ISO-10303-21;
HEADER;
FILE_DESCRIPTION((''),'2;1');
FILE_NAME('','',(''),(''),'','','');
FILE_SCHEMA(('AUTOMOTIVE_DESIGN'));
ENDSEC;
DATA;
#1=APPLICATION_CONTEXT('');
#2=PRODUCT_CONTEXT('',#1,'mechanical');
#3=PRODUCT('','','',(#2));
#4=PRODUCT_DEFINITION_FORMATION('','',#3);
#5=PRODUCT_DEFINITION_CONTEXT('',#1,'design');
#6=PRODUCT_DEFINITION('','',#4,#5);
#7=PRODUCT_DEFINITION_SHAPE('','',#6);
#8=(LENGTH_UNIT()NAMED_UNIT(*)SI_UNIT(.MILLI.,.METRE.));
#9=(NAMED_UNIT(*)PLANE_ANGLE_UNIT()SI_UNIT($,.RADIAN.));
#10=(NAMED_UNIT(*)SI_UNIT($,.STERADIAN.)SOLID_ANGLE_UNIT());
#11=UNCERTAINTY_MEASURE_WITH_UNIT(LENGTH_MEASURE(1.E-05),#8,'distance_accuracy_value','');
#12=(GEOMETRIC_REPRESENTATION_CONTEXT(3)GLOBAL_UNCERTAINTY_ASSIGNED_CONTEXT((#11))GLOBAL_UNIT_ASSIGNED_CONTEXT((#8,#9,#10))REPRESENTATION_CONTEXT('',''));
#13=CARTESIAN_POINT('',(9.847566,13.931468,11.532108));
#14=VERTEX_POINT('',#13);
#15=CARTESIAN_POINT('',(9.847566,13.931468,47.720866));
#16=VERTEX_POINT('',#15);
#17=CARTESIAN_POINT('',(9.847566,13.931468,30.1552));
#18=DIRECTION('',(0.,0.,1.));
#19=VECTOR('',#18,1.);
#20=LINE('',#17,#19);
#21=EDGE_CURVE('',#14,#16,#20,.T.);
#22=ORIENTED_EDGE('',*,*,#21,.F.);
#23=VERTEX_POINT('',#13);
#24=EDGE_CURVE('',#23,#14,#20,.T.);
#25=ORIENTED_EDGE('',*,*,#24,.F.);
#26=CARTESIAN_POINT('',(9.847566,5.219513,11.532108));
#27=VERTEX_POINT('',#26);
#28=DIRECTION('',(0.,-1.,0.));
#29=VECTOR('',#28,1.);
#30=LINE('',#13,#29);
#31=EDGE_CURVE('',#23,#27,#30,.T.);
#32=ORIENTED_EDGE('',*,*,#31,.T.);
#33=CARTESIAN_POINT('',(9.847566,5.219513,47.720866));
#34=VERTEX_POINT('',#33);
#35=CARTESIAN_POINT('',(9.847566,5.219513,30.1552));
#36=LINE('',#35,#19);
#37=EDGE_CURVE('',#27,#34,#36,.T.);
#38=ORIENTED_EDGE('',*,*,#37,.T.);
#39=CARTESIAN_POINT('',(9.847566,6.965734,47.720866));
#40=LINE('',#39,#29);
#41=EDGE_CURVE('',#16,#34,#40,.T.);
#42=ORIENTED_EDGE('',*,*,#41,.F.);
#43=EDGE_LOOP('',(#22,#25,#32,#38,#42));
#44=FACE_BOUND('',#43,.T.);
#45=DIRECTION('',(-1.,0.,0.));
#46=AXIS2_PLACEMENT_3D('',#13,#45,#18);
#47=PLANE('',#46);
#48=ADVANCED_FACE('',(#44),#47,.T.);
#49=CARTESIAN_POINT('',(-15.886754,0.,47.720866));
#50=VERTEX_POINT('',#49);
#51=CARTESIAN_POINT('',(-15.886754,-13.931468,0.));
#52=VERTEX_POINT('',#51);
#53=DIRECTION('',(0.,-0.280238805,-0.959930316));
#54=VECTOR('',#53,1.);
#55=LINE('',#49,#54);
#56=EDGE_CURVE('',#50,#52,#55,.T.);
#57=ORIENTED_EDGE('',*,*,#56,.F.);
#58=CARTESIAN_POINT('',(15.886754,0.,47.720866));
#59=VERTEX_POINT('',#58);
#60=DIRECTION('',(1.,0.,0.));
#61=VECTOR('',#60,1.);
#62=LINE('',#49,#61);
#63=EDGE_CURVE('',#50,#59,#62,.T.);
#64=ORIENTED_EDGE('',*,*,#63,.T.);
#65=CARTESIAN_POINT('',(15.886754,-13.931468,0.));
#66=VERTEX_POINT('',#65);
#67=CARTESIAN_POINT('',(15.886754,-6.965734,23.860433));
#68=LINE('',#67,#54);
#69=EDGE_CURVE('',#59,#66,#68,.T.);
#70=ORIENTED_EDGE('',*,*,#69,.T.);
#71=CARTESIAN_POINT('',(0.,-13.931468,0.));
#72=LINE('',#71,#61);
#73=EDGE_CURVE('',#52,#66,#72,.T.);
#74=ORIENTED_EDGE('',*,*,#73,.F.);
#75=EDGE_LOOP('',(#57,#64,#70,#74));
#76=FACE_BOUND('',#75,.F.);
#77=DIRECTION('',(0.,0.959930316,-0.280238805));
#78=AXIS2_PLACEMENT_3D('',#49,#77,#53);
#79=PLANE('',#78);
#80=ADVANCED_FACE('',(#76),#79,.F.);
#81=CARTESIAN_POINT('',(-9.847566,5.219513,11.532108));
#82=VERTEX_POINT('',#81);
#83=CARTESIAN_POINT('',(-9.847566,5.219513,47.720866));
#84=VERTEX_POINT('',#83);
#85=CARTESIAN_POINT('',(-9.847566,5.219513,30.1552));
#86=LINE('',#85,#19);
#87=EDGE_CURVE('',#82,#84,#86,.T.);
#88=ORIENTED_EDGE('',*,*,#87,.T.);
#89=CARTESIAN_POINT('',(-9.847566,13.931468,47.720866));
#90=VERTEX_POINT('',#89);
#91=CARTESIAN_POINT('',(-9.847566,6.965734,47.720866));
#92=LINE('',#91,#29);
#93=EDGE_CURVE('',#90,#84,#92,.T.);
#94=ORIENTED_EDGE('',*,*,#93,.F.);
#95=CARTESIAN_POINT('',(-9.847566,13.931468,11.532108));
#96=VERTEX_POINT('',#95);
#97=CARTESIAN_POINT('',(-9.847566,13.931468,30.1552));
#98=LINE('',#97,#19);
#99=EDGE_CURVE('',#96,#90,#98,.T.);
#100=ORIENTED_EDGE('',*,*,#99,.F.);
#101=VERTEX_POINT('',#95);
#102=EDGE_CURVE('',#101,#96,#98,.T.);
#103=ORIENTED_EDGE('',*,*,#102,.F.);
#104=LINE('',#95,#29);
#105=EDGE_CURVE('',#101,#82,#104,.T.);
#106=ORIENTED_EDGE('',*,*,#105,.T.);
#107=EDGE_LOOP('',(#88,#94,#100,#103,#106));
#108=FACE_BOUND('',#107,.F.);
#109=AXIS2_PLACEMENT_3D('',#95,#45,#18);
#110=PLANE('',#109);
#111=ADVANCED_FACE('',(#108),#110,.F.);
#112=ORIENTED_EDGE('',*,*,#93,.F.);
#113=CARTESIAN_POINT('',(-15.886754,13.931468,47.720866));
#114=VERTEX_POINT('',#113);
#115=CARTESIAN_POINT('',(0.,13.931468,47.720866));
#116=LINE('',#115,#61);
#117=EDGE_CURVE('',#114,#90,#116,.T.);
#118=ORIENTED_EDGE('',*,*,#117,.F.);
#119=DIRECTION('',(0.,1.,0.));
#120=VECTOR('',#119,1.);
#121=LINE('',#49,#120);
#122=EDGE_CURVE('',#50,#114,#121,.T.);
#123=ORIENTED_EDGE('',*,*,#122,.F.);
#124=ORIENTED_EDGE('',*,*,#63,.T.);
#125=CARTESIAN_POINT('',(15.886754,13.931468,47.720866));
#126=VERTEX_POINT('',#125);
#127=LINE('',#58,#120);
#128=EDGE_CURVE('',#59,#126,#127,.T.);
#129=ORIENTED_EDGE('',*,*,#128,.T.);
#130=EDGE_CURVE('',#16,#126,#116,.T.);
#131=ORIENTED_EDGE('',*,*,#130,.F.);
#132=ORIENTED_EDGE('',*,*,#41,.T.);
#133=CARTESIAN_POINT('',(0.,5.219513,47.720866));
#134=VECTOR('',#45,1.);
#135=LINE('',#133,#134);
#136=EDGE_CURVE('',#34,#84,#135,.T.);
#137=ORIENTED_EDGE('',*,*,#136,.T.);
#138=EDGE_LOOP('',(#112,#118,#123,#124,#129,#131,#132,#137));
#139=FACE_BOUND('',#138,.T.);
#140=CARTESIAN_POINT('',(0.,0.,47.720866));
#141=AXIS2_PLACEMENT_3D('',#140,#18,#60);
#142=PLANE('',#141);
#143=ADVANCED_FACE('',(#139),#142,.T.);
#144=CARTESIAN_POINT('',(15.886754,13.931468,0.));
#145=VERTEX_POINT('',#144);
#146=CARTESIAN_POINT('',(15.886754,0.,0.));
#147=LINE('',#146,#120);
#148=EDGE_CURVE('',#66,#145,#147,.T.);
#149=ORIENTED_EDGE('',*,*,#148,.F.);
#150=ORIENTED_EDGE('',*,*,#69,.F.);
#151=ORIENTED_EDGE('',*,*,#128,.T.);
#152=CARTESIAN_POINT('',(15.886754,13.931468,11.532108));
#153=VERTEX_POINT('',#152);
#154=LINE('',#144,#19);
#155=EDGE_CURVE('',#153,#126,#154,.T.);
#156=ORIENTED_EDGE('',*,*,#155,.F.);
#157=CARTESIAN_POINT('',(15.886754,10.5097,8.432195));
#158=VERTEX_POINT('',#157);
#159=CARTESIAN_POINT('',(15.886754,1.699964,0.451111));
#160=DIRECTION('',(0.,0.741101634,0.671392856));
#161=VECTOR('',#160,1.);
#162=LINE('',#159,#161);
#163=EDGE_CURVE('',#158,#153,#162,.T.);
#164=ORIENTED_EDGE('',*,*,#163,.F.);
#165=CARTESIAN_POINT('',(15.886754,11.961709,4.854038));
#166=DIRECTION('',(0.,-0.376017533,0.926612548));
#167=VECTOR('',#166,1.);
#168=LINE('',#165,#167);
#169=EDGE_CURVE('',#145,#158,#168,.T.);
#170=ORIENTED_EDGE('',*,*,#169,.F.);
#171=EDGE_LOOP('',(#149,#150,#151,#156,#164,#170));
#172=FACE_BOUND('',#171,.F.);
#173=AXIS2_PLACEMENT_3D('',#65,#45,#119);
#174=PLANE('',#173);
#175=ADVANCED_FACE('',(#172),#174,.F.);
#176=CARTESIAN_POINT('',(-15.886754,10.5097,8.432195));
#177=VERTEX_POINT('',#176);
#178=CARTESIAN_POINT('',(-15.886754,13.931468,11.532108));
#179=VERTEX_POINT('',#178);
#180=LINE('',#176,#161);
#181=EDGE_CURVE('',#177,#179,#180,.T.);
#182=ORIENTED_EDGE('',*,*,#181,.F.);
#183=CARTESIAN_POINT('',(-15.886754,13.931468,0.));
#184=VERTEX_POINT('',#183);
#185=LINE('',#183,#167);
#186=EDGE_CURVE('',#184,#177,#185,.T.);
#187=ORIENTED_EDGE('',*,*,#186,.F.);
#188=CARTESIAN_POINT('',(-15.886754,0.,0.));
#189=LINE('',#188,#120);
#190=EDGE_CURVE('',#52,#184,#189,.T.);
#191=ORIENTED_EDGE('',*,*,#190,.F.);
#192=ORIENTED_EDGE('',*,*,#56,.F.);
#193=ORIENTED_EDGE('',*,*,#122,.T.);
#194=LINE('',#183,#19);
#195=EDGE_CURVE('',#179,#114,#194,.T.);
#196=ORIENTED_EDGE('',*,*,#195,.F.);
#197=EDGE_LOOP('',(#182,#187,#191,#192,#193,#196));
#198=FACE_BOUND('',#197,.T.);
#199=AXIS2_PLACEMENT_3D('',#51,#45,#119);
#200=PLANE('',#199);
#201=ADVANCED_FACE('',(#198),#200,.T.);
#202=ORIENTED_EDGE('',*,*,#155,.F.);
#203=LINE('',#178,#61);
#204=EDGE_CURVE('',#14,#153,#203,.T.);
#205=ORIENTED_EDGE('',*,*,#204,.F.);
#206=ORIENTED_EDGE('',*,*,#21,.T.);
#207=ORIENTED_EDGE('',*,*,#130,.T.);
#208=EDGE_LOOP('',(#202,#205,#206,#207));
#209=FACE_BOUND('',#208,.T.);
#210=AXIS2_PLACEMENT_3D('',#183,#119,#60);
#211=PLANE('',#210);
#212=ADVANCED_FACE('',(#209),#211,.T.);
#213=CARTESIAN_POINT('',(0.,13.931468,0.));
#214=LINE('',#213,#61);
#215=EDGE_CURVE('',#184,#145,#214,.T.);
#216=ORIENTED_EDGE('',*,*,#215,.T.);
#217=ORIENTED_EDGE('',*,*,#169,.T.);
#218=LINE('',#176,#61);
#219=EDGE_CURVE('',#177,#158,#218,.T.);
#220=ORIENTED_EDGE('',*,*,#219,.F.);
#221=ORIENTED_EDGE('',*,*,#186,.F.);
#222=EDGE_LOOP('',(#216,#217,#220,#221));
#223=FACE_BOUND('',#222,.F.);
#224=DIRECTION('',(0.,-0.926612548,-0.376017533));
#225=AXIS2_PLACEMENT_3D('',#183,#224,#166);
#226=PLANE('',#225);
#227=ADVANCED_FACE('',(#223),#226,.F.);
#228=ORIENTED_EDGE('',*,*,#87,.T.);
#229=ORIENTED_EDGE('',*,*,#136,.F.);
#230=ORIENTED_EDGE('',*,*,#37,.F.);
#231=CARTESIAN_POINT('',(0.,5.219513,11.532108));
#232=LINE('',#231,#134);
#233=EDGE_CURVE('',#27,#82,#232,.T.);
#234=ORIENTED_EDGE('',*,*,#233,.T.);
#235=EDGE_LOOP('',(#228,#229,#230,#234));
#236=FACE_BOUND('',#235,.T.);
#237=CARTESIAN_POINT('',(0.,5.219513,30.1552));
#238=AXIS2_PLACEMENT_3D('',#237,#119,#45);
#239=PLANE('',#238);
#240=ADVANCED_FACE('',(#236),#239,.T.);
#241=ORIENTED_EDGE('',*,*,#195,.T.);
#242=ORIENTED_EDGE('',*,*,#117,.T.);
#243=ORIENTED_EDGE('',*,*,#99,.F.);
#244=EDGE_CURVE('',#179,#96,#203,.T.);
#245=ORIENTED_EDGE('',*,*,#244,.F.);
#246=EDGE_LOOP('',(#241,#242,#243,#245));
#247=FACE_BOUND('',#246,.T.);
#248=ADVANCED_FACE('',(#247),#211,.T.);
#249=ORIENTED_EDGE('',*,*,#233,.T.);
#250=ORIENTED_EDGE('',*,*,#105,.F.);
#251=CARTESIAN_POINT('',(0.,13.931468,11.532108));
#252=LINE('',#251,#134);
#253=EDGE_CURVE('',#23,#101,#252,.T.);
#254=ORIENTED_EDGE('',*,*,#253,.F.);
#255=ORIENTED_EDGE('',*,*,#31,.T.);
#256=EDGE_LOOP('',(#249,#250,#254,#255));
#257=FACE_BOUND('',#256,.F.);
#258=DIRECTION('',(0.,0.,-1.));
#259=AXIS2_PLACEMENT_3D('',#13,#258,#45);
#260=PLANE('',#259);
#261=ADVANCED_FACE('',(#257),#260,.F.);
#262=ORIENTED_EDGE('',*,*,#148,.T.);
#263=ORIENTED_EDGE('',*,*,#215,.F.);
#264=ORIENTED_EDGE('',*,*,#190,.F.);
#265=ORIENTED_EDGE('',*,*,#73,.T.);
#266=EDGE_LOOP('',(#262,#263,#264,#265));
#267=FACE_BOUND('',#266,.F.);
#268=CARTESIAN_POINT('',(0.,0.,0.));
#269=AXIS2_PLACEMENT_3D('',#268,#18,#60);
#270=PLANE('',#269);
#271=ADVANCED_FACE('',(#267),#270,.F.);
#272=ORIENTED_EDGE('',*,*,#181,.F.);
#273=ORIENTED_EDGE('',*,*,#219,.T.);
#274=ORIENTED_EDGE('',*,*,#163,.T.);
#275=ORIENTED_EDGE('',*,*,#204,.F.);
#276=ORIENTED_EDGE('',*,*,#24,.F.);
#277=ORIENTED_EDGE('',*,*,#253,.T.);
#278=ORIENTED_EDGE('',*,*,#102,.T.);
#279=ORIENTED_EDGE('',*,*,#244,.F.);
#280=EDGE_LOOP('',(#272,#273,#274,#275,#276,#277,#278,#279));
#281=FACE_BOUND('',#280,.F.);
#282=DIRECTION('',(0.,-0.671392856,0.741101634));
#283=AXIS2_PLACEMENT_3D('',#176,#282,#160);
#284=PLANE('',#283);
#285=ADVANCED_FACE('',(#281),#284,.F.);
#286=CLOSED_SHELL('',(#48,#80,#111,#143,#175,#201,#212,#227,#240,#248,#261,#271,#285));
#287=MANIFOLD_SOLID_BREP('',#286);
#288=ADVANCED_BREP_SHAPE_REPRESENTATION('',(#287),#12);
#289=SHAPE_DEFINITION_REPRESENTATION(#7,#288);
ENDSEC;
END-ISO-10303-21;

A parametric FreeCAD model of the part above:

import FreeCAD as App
import Part
import Sketcher
from FreeCAD import Vector
Q = App.Units.Quantity

doc = App.newDocument("Part")
params = doc.addObject("Spreadsheet::Sheet", "Params")
for row, (alias, value) in enumerate([
    ("pad1_length", "47.720866 mm"),
    ("pocket1_length", "35.224047 mm"),
    ("pocket2_length", "8.711955 mm"),
], start=1):
    params.set(f"A{row}", alias)
    params.set(f"B{row}", "=" + value)
    params.setAlias(f"B{row}", alias)

body = doc.addObject("PartDesign::Body", "Body")

sketch1 = body.newObject("Sketcher::SketchObject", "Sketch")
sketch1.AttachmentSupport = (doc.getObject("XY_Plane"), [""])
sketch1.MapMode = "FlatFace"
sketch1.addGeometry(Part.LineSegment(Vector(-16, 14, 0), Vector(-16, -14, 0)), False)
sketch1.addGeometry(Part.LineSegment(Vector(-16, -14, 0), Vector(16, -14, 0)), False)
sketch1.addGeometry(Part.LineSegment(Vector(16, -14, 0), Vector(16, 14, 0)), False)
sketch1.addGeometry(Part.LineSegment(Vector(16, 14, 0), Vector(-16, 14, 0)), False)
sketch1.addConstraint(Sketcher.Constraint("Coincident", 0, 2, 1, 1))
sketch1.addConstraint(Sketcher.Constraint("Coincident", 1, 2, 2, 1))
sketch1.addConstraint(Sketcher.Constraint("Coincident", 2, 2, 3, 1))
sketch1.addConstraint(Sketcher.Constraint("Coincident", 3, 2, 0, 1))
sketch1.addConstraint(Sketcher.Constraint("Vertical", 0))
sketch1.addConstraint(Sketcher.Constraint("Horizontal", 1))
sketch1.addConstraint(Sketcher.Constraint("Vertical", 2))
sketch1.addConstraint(Sketcher.Constraint("Horizontal", 3))
sketch1.addConstraint(Sketcher.Constraint("Symmetric", 0, 2, 2, 2, -1, 1))
sketch1.addConstraint(Sketcher.Constraint("DistanceX", 1, 1, 1, 2, Q("31.773508 mm")))
sketch1.addConstraint(Sketcher.Constraint("DistanceY", 0, 2, 0, 1, Q("27.862936 mm")))
pad1 = body.newObject("PartDesign::Pad", "Pad")
pad1.Profile = sketch1
pad1.setExpression("Length", "Params.pad1_length")

sketch2 = body.newObject("Sketcher::SketchObject", "Sketch001")
sketch2.AttachmentSupport = (doc.getObject("YZ_Plane"), [""])
sketch2.MapMode = "FlatFace"
sketch2.AttachmentOffset = App.Placement(Vector(0, 0, -15.886754), App.Rotation())
sketch2.addGeometry(Part.LineSegment(Vector(-13.9, 47.7, 0), Vector(0, 47.7, 0)), False)
sketch2.addGeometry(Part.LineSegment(Vector(0, 47.7, 0), Vector(-13.9, 0, 0)), False)
sketch2.addGeometry(Part.LineSegment(Vector(-13.9, 0, 0), Vector(-13.9, 47.7, 0)), False)
sketch2.addGeometry(Part.LineSegment(Vector(13.9, 11.5, 0), Vector(13.9, 0, 0)), False)
sketch2.addGeometry(Part.LineSegment(Vector(13.9, 0, 0), Vector(10.5, 8.4, 0)), False)
sketch2.addGeometry(Part.LineSegment(Vector(10.5, 8.4, 0), Vector(13.9, 11.5, 0)), False)
sketch2.addConstraint(Sketcher.Constraint("Coincident", 0, 2, 1, 1))
sketch2.addConstraint(Sketcher.Constraint("Coincident", 1, 2, 2, 1))
sketch2.addConstraint(Sketcher.Constraint("Coincident", 2, 2, 0, 1))
sketch2.addConstraint(Sketcher.Constraint("Coincident", 3, 2, 4, 1))
sketch2.addConstraint(Sketcher.Constraint("Coincident", 4, 2, 5, 1))
sketch2.addConstraint(Sketcher.Constraint("Coincident", 5, 2, 3, 1))
sketch2.addConstraint(Sketcher.Constraint("Horizontal", 0))
sketch2.addConstraint(Sketcher.Constraint("Vertical", 2))
sketch2.addConstraint(Sketcher.Constraint("Vertical", 3))
sketch2.addConstraint(Sketcher.Constraint("Symmetric", 1, 2, 3, 2, -1, 1))
sketch2.addConstraint(Sketcher.Constraint("PointOnObject", 0, 2, -2))
sketch2.addConstraint(Sketcher.Constraint("PointOnObject", 1, 2, -1))
sketch2.addConstraint(Sketcher.Constraint("DistanceX", 0, 1, 0, 2, Q("13.931468 mm")))
sketch2.addConstraint(Sketcher.Constraint("DistanceX", -1, 1, 4, 2, Q("10.5097 mm")))
sketch2.addConstraint(Sketcher.Constraint("DistanceY", 2, 1, 2, 2, Q("47.720866 mm")))
sketch2.addConstraint(Sketcher.Constraint("DistanceY", 3, 2, 3, 1, Q("11.532108 mm")))
sketch2.addConstraint(Sketcher.Constraint("DistanceY", 4, 2, 0, 2, Q("39.288671 mm")))
pocket1 = body.newObject("PartDesign::Pocket", "Pocket")
pocket1.Profile = sketch2
pocket1.setExpression("Length", "Params.pocket1_length")
pocket1.Reversed = True

sketch3 = body.newObject("Sketcher::SketchObject", "Sketch002")
sketch3.AttachmentSupport = (doc.getObject("XZ_Plane"), [""])
sketch3.MapMode = "FlatFace"
sketch3.AttachmentOffset = App.Placement(Vector(0, 0, -13.931468), App.Rotation())
sketch3.addGeometry(Part.LineSegment(Vector(10, 49, 0), Vector(10, 12, 0)), False)
sketch3.addGeometry(Part.LineSegment(Vector(10, 12, 0), Vector(-10, 12, 0)), False)
sketch3.addGeometry(Part.LineSegment(Vector(-10, 12, 0), Vector(-10, 49, 0)), False)
sketch3.addGeometry(Part.LineSegment(Vector(-10, 49, 0), Vector(10, 49, 0)), False)
sketch3.addConstraint(Sketcher.Constraint("Coincident", 0, 2, 1, 1))
sketch3.addConstraint(Sketcher.Constraint("Coincident", 1, 2, 2, 1))
sketch3.addConstraint(Sketcher.Constraint("Coincident", 2, 2, 3, 1))
sketch3.addConstraint(Sketcher.Constraint("Coincident", 3, 2, 0, 1))
sketch3.addConstraint(Sketcher.Constraint("Vertical", 0))
sketch3.addConstraint(Sketcher.Constraint("Horizontal", 1))
sketch3.addConstraint(Sketcher.Constraint("Vertical", 2))
sketch3.addConstraint(Sketcher.Constraint("Horizontal", 3))
sketch3.addConstraint(Sketcher.Constraint("DistanceX", 1, 2, 1, 1, Q("19.695132 mm")))
sketch3.addConstraint(Sketcher.Constraint("DistanceY", 0, 2, 0, 1, Q("37.246185 mm")))
sketch3.addConstraint(Sketcher.Constraint("DistanceX", -1, 1, 0, 2, Q("9.847566 mm")))
sketch3.addConstraint(Sketcher.Constraint("DistanceY", -1, 1, 0, 2, Q("11.532108 mm")))
pocket2 = body.newObject("PartDesign::Pocket", "Pocket001")
pocket2.Profile = sketch3
pocket2.setExpression("Length", "Params.pocket2_length")
pocket2.Reversed = True

doc.recompute()
